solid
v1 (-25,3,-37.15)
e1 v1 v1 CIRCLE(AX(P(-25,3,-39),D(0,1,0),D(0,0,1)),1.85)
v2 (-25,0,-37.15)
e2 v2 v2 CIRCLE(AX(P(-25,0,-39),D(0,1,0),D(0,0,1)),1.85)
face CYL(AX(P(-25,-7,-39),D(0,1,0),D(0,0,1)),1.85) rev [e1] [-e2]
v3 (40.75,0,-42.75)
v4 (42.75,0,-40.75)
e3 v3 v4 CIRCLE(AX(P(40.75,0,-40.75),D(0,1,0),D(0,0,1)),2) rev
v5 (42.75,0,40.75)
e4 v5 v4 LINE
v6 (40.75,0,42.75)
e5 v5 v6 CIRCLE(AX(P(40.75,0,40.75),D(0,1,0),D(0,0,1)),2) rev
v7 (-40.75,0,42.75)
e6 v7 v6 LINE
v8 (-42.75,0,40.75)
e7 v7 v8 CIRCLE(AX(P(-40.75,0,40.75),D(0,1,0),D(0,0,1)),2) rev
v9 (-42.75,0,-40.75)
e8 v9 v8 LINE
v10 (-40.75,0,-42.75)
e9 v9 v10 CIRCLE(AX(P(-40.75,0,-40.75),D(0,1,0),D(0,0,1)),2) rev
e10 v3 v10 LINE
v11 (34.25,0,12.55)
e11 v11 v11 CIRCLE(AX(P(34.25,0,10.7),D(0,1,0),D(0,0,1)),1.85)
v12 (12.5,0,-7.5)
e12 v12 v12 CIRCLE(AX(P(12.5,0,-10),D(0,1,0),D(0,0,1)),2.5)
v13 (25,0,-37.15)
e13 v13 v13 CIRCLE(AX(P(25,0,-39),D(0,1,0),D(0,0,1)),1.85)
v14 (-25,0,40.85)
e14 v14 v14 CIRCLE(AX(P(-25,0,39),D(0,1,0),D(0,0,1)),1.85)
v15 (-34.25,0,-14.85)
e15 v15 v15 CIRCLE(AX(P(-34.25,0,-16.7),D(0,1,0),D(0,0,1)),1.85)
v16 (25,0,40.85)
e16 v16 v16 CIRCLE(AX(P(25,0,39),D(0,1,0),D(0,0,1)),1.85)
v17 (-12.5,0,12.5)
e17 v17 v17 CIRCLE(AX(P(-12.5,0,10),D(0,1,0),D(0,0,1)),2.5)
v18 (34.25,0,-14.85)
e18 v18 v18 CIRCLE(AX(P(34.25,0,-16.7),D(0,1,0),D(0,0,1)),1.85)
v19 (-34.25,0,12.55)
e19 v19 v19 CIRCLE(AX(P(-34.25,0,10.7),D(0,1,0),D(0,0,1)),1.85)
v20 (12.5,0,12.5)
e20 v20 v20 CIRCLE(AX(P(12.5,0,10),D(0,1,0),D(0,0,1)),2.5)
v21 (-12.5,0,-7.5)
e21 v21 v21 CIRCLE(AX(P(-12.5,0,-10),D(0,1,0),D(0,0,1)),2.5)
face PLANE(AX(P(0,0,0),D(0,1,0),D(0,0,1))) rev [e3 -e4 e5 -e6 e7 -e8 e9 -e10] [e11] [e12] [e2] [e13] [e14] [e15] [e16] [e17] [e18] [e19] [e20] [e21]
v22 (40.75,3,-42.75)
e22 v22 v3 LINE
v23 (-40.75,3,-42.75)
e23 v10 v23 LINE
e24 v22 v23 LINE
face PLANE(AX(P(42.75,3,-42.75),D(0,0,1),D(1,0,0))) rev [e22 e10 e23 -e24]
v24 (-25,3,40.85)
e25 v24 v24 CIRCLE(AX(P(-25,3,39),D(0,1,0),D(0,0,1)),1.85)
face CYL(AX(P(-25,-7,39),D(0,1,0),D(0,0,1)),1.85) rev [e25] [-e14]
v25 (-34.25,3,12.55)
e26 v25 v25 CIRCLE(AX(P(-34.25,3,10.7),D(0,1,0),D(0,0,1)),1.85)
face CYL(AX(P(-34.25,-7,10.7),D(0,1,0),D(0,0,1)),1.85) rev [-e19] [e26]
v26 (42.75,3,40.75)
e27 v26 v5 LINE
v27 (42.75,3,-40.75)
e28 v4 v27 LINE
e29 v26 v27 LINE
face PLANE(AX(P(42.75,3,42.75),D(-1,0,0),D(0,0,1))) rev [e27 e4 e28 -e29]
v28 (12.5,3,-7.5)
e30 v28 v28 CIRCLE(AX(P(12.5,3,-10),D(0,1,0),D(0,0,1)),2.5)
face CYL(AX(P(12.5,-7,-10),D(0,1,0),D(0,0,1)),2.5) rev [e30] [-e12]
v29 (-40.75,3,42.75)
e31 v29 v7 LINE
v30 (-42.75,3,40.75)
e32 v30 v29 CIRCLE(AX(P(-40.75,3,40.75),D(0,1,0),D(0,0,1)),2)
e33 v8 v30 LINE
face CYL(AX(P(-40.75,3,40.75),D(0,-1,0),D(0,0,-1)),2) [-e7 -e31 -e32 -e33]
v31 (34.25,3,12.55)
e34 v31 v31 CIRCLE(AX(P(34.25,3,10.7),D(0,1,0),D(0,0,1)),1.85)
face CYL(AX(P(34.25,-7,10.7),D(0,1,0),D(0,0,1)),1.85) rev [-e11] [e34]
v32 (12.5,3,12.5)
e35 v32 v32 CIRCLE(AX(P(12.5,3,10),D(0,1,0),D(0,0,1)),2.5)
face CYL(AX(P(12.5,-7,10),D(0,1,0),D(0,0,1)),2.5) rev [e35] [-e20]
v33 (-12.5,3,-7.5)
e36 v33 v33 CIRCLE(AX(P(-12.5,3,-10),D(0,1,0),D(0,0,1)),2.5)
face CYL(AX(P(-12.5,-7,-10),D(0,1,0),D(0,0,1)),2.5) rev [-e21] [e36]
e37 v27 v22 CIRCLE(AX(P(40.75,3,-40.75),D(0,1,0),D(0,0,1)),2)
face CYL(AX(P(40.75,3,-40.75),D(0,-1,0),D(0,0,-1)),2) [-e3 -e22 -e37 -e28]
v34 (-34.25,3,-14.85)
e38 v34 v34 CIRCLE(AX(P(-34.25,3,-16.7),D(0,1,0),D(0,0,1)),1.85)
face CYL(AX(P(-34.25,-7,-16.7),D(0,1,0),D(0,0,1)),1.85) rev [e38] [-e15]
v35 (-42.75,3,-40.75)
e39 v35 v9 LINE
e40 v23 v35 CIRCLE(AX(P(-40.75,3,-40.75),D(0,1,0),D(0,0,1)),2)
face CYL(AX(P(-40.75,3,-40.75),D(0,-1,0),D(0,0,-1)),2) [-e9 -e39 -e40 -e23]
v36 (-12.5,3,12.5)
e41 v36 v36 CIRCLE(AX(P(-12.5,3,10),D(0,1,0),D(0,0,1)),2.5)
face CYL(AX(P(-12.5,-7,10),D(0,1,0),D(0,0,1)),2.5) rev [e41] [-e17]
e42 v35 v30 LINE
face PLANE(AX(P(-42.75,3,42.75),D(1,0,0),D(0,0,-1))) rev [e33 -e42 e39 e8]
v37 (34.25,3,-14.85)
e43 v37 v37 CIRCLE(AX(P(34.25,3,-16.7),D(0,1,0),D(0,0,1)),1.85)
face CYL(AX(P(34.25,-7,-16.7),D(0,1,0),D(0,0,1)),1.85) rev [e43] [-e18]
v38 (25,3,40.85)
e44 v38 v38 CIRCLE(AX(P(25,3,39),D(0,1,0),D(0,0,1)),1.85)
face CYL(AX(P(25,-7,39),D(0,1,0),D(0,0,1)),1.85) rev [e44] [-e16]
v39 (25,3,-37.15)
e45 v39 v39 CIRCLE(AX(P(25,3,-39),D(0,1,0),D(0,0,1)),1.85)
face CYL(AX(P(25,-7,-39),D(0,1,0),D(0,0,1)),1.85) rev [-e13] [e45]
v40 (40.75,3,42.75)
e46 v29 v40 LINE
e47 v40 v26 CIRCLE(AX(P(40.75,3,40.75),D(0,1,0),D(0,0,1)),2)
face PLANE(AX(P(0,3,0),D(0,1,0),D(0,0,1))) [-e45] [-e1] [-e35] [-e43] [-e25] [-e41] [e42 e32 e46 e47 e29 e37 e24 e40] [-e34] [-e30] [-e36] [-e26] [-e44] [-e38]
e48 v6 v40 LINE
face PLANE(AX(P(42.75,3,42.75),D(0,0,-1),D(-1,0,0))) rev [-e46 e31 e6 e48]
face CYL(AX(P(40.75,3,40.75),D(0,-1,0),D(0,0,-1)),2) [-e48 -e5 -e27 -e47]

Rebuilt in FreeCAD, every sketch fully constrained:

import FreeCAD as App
import Part
import Sketcher
from FreeCAD import Vector


def edges_at(feature, points):
    """Names of the edges that pass closest to the given points."""
    edges = feature.Shape.Edges
    near = lambda p: min(range(len(edges)), key=lambda i: edges[i].distToShape(Part.Vertex(*p))[0])
    return sorted({f"Edge{near(p) + 1}" for p in points})

doc = App.newDocument("Part")
body = doc.addObject("PartDesign::Body", "Body")

# Sketch on XZ plane
sketch1 = body.newObject("Sketcher::SketchObject", "Sketch")
sketch1.AttachmentSupport = (doc.getObject("XZ_Plane"), [""])
sketch1.MapMode = "FlatFace"
sketch1.addGeometry([
    Part.LineSegment(Vector(-42.75, -42.75, 0), Vector(-42.75, 42.75, 0)),
    Part.LineSegment(Vector(-42.75, 42.75, 0), Vector(42.75, 42.75, 0)),
    Part.LineSegment(Vector(42.75, 42.75, 0), Vector(42.75, -42.75, 0)),
    Part.LineSegment(Vector(42.75, -42.75, 0), Vector(-42.75, -42.75, 0)),
], False)
sketch1.addConstraint([
    Sketcher.Constraint("Coincident", 0, 2, 1, 1),
    Sketcher.Constraint("Coincident", 1, 2, 2, 1),
    Sketcher.Constraint("Coincident", 2, 2, 3, 1),
    Sketcher.Constraint("Coincident", 3, 2, 0, 1),
    Sketcher.Constraint("Vertical", 0),
    Sketcher.Constraint("Horizontal", 1),
    Sketcher.Constraint("Vertical", 2),
    Sketcher.Constraint("Horizontal", 3),
    Sketcher.Constraint("Symmetric", 0, 2, 2, 2, -1, 1),
    Sketcher.Constraint("Equal", 3, 0),
    Sketcher.Constraint("DistanceX", 1, 1, 1, 2, 85.5),
])
pad1 = body.newObject("PartDesign::Pad", "Pad")
pad1.Profile = sketch1
pad1.Length = 3
pad1.Reversed = True
doc.recompute()

fillet = body.newObject("PartDesign::Fillet", "Fillet")
fillet.Base = (pad1, edges_at(pad1, [
    (-42.75, 1.5, -42.75),
    (42.75, 1.5, -42.75),
    (42.75, 1.5, 42.75),
    (-42.75, 1.5, 42.75),
]))
fillet.Radius = 2

# Sketch on XZ plane
sketch2 = body.newObject("Sketcher::SketchObject", "Sketch001")
sketch2.AttachmentSupport = (doc.getObject("XZ_Plane"), [""])
sketch2.MapMode = "FlatFace"
sketch2.AttachmentOffset = App.Placement(Vector(0, 0, -3), App.Rotation())
sketch2.addGeometry([
    Part.Circle(Vector(-25, -39, 0), Vector(0, 0, 1), 1.85),
    Part.Circle(Vector(25, -39, 0), Vector(0, 0, 1), 1.85),
    Part.Circle(Vector(25, 39, 0), Vector(0, 0, 1), 1.85),
    Part.Circle(Vector(-25, 39, 0), Vector(0, 0, 1), 1.85),
], False)
sketch2.addConstraint([
    Sketcher.Constraint("Equal", 0, 1),
    Sketcher.Constraint("Equal", 1, 2),
    Sketcher.Constraint("Equal", 2, 3),
    Sketcher.Constraint("Symmetric", 0, 3, 2, 3, -1, 1),
    Sketcher.Constraint("Symmetric", 1, 3, 3, 3, -1, 1),
    Sketcher.Constraint("Symmetric", 0, 3, 1, 3, -2),
    Sketcher.Constraint("Diameter", 0, 3.7),
    Sketcher.Constraint("DistanceX", 0, 3, -1, 1, 25.0),
    Sketcher.Constraint("DistanceY", 0, 3, -1, 1, 39.0),
])
pocket1 = body.newObject("PartDesign::Pocket", "Pocket")
pocket1.Profile = sketch2
pocket1.Length = 10
pocket1.Reversed = True

# Sketch on XZ plane
sketch3 = body.newObject("Sketcher::SketchObject", "Sketch002")
sketch3.AttachmentSupport = (doc.getObject("XZ_Plane"), [""])
sketch3.MapMode = "FlatFace"
sketch3.AttachmentOffset = App.Placement(Vector(0, 0, -3), App.Rotation())
sketch3.addGeometry([
    Part.Circle(Vector(-12.5, -10, 0), Vector(0, 0, 1), 2.5),  # 0
    Part.Circle(Vector(-12.5, 10, 0), Vector(0, 0, 1), 2.5),  # 1
    Part.Circle(Vector(12.5, -10, 0), Vector(0, 0, 1), 2.5),  # 2
    Part.Circle(Vector(12.5, 10, 0), Vector(0, 0, 1), 2.5),  # 3
    Part.Circle(Vector(-34.25, -16.7, 0), Vector(0, 0, 1), 1.85),  # 4
    Part.Circle(Vector(-34.25, 10.7, 0), Vector(0, 0, 1), 1.85),  # 5
    Part.Circle(Vector(34.25, 10.7, 0), Vector(0, 0, 1), 1.85),  # 6
    Part.Circle(Vector(34.25, -16.7, 0), Vector(0, 0, 1), 1.85),  # 7
], False)
sketch3.addConstraint([
    Sketcher.Constraint("Equal", 0, 1),
    Sketcher.Constraint("Equal", 1, 2),
    Sketcher.Constraint("Equal", 2, 3),
    Sketcher.Constraint("Equal", 4, 5),
    Sketcher.Constraint("Equal", 5, 6),
    Sketcher.Constraint("Equal", 6, 7),
    Sketcher.Constraint("Symmetric", 1, 3, 2, 3, -1, 1),
    Sketcher.Constraint("Symmetric", 0, 3, 3, 3, -1, 1),
    Sketcher.Constraint("Symmetric", 0, 3, 2, 3, -2),
    Sketcher.Constraint("Symmetric", 5, 3, 6, 3, -2),
    Sketcher.Constraint("Symmetric", 4, 3, 7, 3, -2),
    Sketcher.Constraint("Vertical", 4, 3, 5, 3),
    Sketcher.Constraint("Diameter", 0, 5.0),
    Sketcher.Constraint("Diameter", 4, 3.7),
    Sketcher.Constraint("DistanceY", 0, 3, -1, 1, 10.0),
    Sketcher.Constraint("DistanceX", 0, 3, 2, 3, 25.0),
    Sketcher.Constraint("DistanceY", 4, 3, -1, 1, 16.7),
    Sketcher.Constraint("DistanceY", -1, 1, 5, 3, 10.7),
    Sketcher.Constraint("DistanceX", 5, 3, 6, 3, 68.5),
])
pocket2 = body.newObject("PartDesign::Pocket", "Pocket001")
pocket2.Profile = sketch3
pocket2.Length = 10
pocket2.Reversed = True

doc.recompute()
